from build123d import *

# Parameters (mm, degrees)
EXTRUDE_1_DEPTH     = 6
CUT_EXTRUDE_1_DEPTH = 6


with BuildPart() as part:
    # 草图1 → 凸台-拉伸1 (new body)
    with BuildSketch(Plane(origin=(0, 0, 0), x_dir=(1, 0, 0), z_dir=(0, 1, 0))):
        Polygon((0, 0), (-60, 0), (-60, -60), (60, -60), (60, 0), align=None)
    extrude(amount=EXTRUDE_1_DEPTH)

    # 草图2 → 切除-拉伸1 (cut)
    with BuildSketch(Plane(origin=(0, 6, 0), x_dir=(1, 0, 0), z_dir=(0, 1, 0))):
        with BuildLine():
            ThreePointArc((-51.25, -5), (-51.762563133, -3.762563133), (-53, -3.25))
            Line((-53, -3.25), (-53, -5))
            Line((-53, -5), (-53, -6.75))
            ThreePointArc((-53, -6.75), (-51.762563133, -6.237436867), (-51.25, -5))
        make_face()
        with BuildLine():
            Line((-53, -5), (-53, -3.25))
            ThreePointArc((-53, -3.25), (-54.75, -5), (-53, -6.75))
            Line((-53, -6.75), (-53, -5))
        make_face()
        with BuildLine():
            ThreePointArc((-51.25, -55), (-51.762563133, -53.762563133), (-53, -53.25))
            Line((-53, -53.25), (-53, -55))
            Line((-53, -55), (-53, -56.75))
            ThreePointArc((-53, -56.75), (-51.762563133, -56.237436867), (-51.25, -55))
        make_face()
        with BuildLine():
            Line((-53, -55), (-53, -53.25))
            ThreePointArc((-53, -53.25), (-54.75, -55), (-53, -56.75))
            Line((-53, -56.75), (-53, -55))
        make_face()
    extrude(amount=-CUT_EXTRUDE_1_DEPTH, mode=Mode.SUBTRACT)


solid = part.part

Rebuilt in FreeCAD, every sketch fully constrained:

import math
import FreeCAD as App
import Part
import Sketcher
from FreeCAD import Vector


def add_polygon(sketch, points):
    """Adds a closed chain of lines whose ends are joined by coincident constraints."""
    first, n = sketch.GeometryCount, len(points)
    for a, b in zip(points, points[1:] + points[:1]):
        sketch.addGeometry(Part.LineSegment(App.Vector(*a, 0), App.Vector(*b, 0)), False)
    for i in range(n):
        sketch.addConstraint(Sketcher.Constraint("Coincident", first + i, 2, first + (i + 1) % n, 1))

doc = App.newDocument("Part")
body = doc.addObject("PartDesign::Body", "Body")

sketch1 = doc.addObject("Sketcher::SketchObject", "Sketch")
body.addObject(sketch1)
sketch1.AttachmentSupport = (doc.XZ_Plane, [""])
sketch1.MapMode = "FlatFace"
add_polygon(sketch1, [(-60, 0), (-60, 60), (60, 60), (60, 0)])
sketch1.addConstraint(Sketcher.Constraint("Vertical", 0))
sketch1.addConstraint(Sketcher.Constraint("Horizontal", 1))
sketch1.addConstraint(Sketcher.Constraint("Vertical", 2))
sketch1.addConstraint(Sketcher.Constraint("Horizontal", 3))
sketch1.addConstraint(Sketcher.Constraint("Symmetric", 2, 2, 3, 2, -1, 1))
sketch1.addConstraint(Sketcher.Constraint("DistanceX", 1, 1, 1, 2, 120.0))
sketch1.addConstraint(Sketcher.Constraint("DistanceY", 0, 1, 0, 2, 60.0))
pad1 = doc.addObject("PartDesign::Pad", "Pad")
body.addObject(pad1)
pad1.Profile = sketch1
pad1.Length = 6
pad1.Reversed = True

sketch2 = doc.addObject("Sketcher::SketchObject", "Sketch001")
body.addObject(sketch2)
sketch2.AttachmentSupport = (doc.XZ_Plane, [""])
sketch2.MapMode = "FlatFace"
sketch2.AttachmentOffset = App.Placement(Vector(0, 0, -6), App.Rotation())
sketch2.addGeometry(Part.ArcOfCircle(Part.Circle(Vector(-53, 5, 0), Vector(0, 0, 1), 1.8), math.radians(-90), math.radians(0)), False)
sketch2.addGeometry(Part.ArcOfCircle(Part.Circle(Vector(-53, 5, 0), Vector(0, 0, 1), 1.8), math.radians(90), math.radians(270)), False)
sketch2.addGeometry(Part.ArcOfCircle(Part.Circle(Vector(-53, 5, 0), Vector(0, 0, 1), 1.8), math.radians(0), math.radians(90)), False)
sketch2.addGeometry(Part.ArcOfCircle(Part.Circle(Vector(-53, 55, 0), Vector(0, 0, 1), 1.8), math.radians(-90), math.radians(0)), False)
sketch2.addGeometry(Part.ArcOfCircle(Part.Circle(Vector(-53, 55, 0), Vector(0, 0, 1), 1.8), math.radians(90), math.radians(270)), False)
sketch2.addGeometry(Part.ArcOfCircle(Part.Circle(Vector(-53, 55, 0), Vector(0, 0, 1), 1.8), math.radians(0), math.radians(90)), False)
sketch2.addConstraint(Sketcher.Constraint("Tangent", 0, 1, 1, 2))
sketch2.addConstraint(Sketcher.Constraint("Tangent", 1, 1, 2, 2))
sketch2.addConstraint(Sketcher.Constraint("Tangent", 2, 1, 0, 2))
sketch2.addConstraint(Sketcher.Constraint("Tangent", 3, 1, 4, 2))
sketch2.addConstraint(Sketcher.Constraint("Tangent", 4, 1, 5, 2))
sketch2.addConstraint(Sketcher.Constraint("Tangent", 5, 1, 3, 2))
sketch2.addConstraint(Sketcher.Constraint("Equal", 2, 3))
sketch2.addConstraint(Sketcher.Constraint("Horizontal", 1, 3, 2, 1))
sketch2.addConstraint(Sketcher.Constraint("Horizontal", 4, 3, 5, 1))
sketch2.addConstraint(Sketcher.Constraint("Vertical", 2, 3, 3, 3))
sketch2.addConstraint(Sketcher.Constraint("Vertical", 5, 3, 0, 1))
sketch2.addConstraint(Sketcher.Constraint("Vertical", 0, 1, 1, 1))
sketch2.addConstraint(Sketcher.Constraint("Vertical", 1, 1, 3, 1))
sketch2.addConstraint(Sketcher.Constraint("Vertical", 3, 1, 4, 1))
sketch2.addConstraint(Sketcher.Constraint("Radius", 0, 1.75))
sketch2.addConstraint(Sketcher.Constraint("DistanceX", 0, 3, -1, 1, 53.0))
sketch2.addConstraint(Sketcher.Constraint("DistanceY", -1, 1, 0, 3, 5.0))
sketch2.addConstraint(Sketcher.Constraint("DistanceY", -1, 1, 3, 3, 55.0))
pocket1 = doc.addObject("PartDesign::Pocket", "Pocket")
body.addObject(pocket1)
pocket1.Profile = sketch2
pocket1.Length = 6
pocket1.Reversed = True

doc.recompute()
